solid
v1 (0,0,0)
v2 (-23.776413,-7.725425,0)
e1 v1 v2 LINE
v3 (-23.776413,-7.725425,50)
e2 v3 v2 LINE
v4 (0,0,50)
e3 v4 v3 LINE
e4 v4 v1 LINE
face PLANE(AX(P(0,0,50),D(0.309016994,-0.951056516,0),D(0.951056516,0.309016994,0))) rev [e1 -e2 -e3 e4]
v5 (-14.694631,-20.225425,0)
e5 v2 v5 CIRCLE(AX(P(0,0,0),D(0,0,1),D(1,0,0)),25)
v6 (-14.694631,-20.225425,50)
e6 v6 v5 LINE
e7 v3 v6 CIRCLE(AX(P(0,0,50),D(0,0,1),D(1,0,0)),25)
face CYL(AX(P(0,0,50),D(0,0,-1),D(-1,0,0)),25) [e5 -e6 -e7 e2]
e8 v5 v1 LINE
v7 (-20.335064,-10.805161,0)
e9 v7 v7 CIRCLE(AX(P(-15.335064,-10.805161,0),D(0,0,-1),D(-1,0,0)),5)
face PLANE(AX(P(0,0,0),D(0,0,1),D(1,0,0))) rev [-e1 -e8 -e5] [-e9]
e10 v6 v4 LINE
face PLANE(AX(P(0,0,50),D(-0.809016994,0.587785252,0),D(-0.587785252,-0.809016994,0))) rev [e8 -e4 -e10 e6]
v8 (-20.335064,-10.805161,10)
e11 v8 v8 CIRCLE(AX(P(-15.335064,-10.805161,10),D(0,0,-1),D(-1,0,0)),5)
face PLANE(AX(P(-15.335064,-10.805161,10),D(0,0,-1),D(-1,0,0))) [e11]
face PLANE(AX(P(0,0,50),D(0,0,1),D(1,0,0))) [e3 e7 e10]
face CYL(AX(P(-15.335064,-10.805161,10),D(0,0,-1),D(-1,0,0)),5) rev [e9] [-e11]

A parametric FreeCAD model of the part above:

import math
import FreeCAD as App
import Part
import Sketcher

V = App.Vector
Q = App.Units.Quantity

doc = App.newDocument("Part")
body = doc.addObject("PartDesign::Body", "Body")

sketch1 = body.newObject("Sketcher::SketchObject", "Sketch")
sketch1.AttachmentSupport = (doc.getObject("XY_Plane"), [""])
sketch1.MapMode = "FlatFace"
sketch1.addGeometry(Part.LineSegment(V(0, 0, 0), V(-24, -8, 0)), False)
sketch1.addGeometry(Part.ArcOfCircle(Part.Circle(V(0, 0, 0), V(0, 0, 1), 25), math.radians(-162), math.radians(-126)), False)
sketch1.addGeometry(Part.LineSegment(V(-15, -20, 0), V(0, 0, 0)), False)
sketch1.addConstraint(Sketcher.Constraint("Coincident", 0, 2, 1, 1))
sketch1.addConstraint(Sketcher.Constraint("Coincident", 1, 2, 2, 1))
sketch1.addConstraint(Sketcher.Constraint("Coincident", 2, 2, 0, 1))
sketch1.addConstraint(Sketcher.Constraint("Coincident", 1, 3, -1, 1))
sketch1.addConstraint(Sketcher.Constraint("Coincident", 2, 2, -1, 1))
sketch1.addConstraint(Sketcher.Constraint("Radius", 1, 25.0))
sketch1.addConstraint(Sketcher.Constraint("Angle", 0, Q("-162 deg")))
sketch1.addConstraint(Sketcher.Constraint("Angle", 2, Q("54 deg")))
pad1 = body.newObject("PartDesign::Pad", "Pad")
pad1.Profile = sketch1
pad1.Length = 50

sketch2 = body.newObject("Sketcher::SketchObject", "Sketch001")
sketch2.AttachmentSupport = (doc.getObject("XY_Plane"), [""])
sketch2.MapMode = "FlatFace"
sketch2.addGeometry(Part.Circle(V(-15, -11, 0), V(0, 0, 1), 5), False)
sketch2.addConstraint(Sketcher.Constraint("Diameter", 0, 10.0))
sketch2.addConstraint(Sketcher.Constraint("DistanceY", 0, 3, -1, 1, 10.805161))
sketch2.addConstraint(Sketcher.Constraint("DistanceX", 0, 3, -1, 1, 15.335064))
pocket1 = body.newObject("PartDesign::Pocket", "Pocket")
pocket1.Profile = sketch2
pocket1.Length = 10
pocket1.Reversed = True

doc.recompute()
